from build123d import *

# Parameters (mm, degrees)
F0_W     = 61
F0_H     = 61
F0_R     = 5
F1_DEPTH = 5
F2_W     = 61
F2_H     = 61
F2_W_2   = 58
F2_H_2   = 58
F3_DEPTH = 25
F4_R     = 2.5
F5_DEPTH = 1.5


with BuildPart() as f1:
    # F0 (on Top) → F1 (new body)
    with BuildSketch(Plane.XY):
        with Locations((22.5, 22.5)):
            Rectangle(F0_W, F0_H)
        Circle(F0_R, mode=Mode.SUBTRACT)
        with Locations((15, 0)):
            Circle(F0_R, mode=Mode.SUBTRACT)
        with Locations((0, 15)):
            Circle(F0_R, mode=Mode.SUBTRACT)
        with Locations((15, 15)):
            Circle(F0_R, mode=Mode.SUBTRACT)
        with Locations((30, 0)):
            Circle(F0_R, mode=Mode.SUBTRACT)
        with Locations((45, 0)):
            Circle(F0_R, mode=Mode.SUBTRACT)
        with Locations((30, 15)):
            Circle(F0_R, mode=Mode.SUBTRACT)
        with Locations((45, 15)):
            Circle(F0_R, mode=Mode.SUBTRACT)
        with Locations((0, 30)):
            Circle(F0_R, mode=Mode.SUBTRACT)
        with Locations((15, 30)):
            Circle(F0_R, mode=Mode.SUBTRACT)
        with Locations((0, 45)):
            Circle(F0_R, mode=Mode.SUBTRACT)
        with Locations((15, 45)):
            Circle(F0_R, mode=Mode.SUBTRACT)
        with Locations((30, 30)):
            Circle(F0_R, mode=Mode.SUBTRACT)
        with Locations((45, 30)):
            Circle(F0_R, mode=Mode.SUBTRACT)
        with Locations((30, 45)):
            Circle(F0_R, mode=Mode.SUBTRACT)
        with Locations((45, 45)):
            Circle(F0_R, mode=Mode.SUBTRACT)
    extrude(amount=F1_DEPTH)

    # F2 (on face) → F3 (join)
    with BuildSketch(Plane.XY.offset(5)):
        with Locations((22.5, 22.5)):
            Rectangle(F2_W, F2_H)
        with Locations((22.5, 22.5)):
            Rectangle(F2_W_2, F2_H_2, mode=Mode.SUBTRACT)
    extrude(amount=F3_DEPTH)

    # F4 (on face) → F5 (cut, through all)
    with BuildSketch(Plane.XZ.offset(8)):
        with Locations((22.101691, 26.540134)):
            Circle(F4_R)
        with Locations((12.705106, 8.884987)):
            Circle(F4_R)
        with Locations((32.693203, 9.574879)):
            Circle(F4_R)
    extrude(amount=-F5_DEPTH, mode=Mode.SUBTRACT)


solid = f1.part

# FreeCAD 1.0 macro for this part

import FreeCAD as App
import Part
import Sketcher

V = App.Vector
Q = App.Units.Quantity


def add_polygon(sketch, points):
    """Adds a closed chain of lines whose ends are joined by coincident constraints."""
    first, n = sketch.GeometryCount, len(points)
    for a, b in zip(points, points[1:] + points[:1]):
        sketch.addGeometry(Part.LineSegment(App.Vector(*a, 0), App.Vector(*b, 0)), False)
    for i in range(n):
        sketch.addConstraint(Sketcher.Constraint("Coincident", first + i, 2, first + (i + 1) % n, 1))

doc = App.newDocument("Part")
params = doc.addObject("Spreadsheet::Sheet", "Params")
for row, (alias, value) in enumerate([
    ("sketch1_diameter", "10 mm"),
    ("sketch1_width", "61 mm"),
    ("pad1_length", "5 mm"),
    ("sketch2_width", "61 mm"),
    ("sketch2_width2", "58 mm"),
    ("pad2_length", "25 mm"),
    ("sketch3_diameter", "5 mm"),
    ("pocket1_length", "1.5 mm"),
], start=1):
    params.set(f"A{row}", alias)
    params.set(f"B{row}", "=" + value)
    params.setAlias(f"B{row}", alias)

body = doc.addObject("PartDesign::Body", "Body")

sketch1 = body.newObject("Sketcher::SketchObject", "Sketch")
sketch1.AttachmentSupport = (doc.getObject("XY_Plane"), [""])
sketch1.MapMode = "FlatFace"
add_polygon(sketch1, [(-8, 53), (-8, -8), (53, -8), (53, 53)])
sketch1.addGeometry(Part.Circle(V(0, 0, 0), V(0, 0, 1), 5), False)
sketch1.addGeometry(Part.Circle(V(15, 0, 0), V(0, 0, 1), 5), False)
sketch1.addGeometry(Part.Circle(V(0, 15, 0), V(0, 0, 1), 5), False)
sketch1.addGeometry(Part.Circle(V(15, 15, 0), V(0, 0, 1), 5), False)
sketch1.addGeometry(Part.Circle(V(30, 0, 0), V(0, 0, 1), 5), False)
sketch1.addGeometry(Part.Circle(V(45, 0, 0), V(0, 0, 1), 5), False)
sketch1.addGeometry(Part.Circle(V(30, 15, 0), V(0, 0, 1), 5), False)
sketch1.addGeometry(Part.Circle(V(45, 15, 0), V(0, 0, 1), 5), False)
sketch1.addGeometry(Part.Circle(V(0, 30, 0), V(0, 0, 1), 5), False)
sketch1.addGeometry(Part.Circle(V(15, 30, 0), V(0, 0, 1), 5), False)
sketch1.addGeometry(Part.Circle(V(0, 45, 0), V(0, 0, 1), 5), False)
sketch1.addGeometry(Part.Circle(V(15, 45, 0), V(0, 0, 1), 5), False)
sketch1.addGeometry(Part.Circle(V(30, 30, 0), V(0, 0, 1), 5), False)
sketch1.addGeometry(Part.Circle(V(45, 30, 0), V(0, 0, 1), 5), False)
sketch1.addGeometry(Part.Circle(V(30, 45, 0), V(0, 0, 1), 5), False)
sketch1.addGeometry(Part.Circle(V(45, 45, 0), V(0, 0, 1), 5), False)
sketch1.addConstraint(Sketcher.Constraint("Vertical", 0))
sketch1.addConstraint(Sketcher.Constraint("Horizontal", 1))
sketch1.addConstraint(Sketcher.Constraint("Vertical", 2))
sketch1.addConstraint(Sketcher.Constraint("Horizontal", 3))
sketch1.addConstraint(Sketcher.Constraint("Coincident", 4, 3, -1, 1))
sketch1.addConstraint(Sketcher.Constraint("Equal", 4, 5))
sketch1.addConstraint(Sketcher.Constraint("Equal", 5, 6))
sketch1.addConstraint(Sketcher.Constraint("Equal", 6, 7))
sketch1.addConstraint(Sketcher.Constraint("Equal", 7, 8))
sketch1.addConstraint(Sketcher.Constraint("Equal", 8, 9))
sketch1.addConstraint(Sketcher.Constraint("Equal", 9, 10))
sketch1.addConstraint(Sketcher.Constraint("Equal", 10, 11))
sketch1.addConstraint(Sketcher.Constraint("Equal", 11, 12))
sketch1.addConstraint(Sketcher.Constraint("Equal", 12, 13))
sketch1.addConstraint(Sketcher.Constraint("Equal", 13, 14))
sketch1.addConstraint(Sketcher.Constraint("Equal", 14, 15))
sketch1.addConstraint(Sketcher.Constraint("Equal", 15, 16))
sketch1.addConstraint(Sketcher.Constraint("Equal", 16, 17))
sketch1.addConstraint(Sketcher.Constraint("Equal", 17, 18))
sketch1.addConstraint(Sketcher.Constraint("Equal", 18, 19))
sketch1.addConstraint(Sketcher.Constraint("PointOnObject", 5, 3, -1))
sketch1.addConstraint(Sketcher.Constraint("PointOnObject", 6, 3, -2))
sketch1.addConstraint(Sketcher.Constraint("PointOnObject", 8, 3, -1))
sketch1.addConstraint(Sketcher.Constraint("PointOnObject", 9, 3, -1))
sketch1.addConstraint(Sketcher.Constraint("PointOnObject", 12, 3, -2))
sketch1.addConstraint(Sketcher.Constraint("PointOnObject", 14, 3, -2))
sketch1.addConstraint(Sketcher.Constraint("Horizontal", 6, 3, 7, 3))
sketch1.addConstraint(Sketcher.Constraint("Horizontal", 7, 3, 10, 3))
sketch1.addConstraint(Sketcher.Constraint("Horizontal", 10, 3, 11, 3))
sketch1.addConstraint(Sketcher.Constraint("Horizontal", 12, 3, 13, 3))
sketch1.addConstraint(Sketcher.Constraint("Horizontal", 14, 3, 15, 3))
sketch1.addConstraint(Sketcher.Constraint("Horizontal", 13, 3, 16, 3))
sketch1.addConstraint(Sketcher.Constraint("Horizontal", 16, 3, 17, 3))
sketch1.addConstraint(Sketcher.Constraint("Horizontal", 15, 3, 18, 3))
sketch1.addConstraint(Sketcher.Constraint("Horizontal", 18, 3, 19, 3))
sketch1.addConstraint(Sketcher.Constraint("Vertical", 5, 3, 7, 3))
sketch1.addConstraint(Sketcher.Constraint("Vertical", 8, 3, 10, 3))
sketch1.addConstraint(Sketcher.Constraint("Vertical", 9, 3, 11, 3))
sketch1.addConstraint(Sketcher.Constraint("Vertical", 7, 3, 13, 3))
sketch1.addConstraint(Sketcher.Constraint("Vertical", 13, 3, 15, 3))
sketch1.addConstraint(Sketcher.Constraint("Vertical", 10, 3, 16, 3))
sketch1.addConstraint(Sketcher.Constraint("Vertical", 11, 3, 17, 3))
sketch1.addConstraint(Sketcher.Constraint("Vertical", 16, 3, 18, 3))
sketch1.addConstraint(Sketcher.Constraint("Vertical", 17, 3, 19, 3))
sketch1.addConstraint(Sketcher.Constraint("Equal", 3, 0))
sketch1.addConstraint(Sketcher.Constraint("Diameter", 4, Q("10 mm")))
sketch1.addConstraint(Sketcher.Constraint("DistanceX", 1, 1, 1, 2, Q("61 mm")))
sketch1.addConstraint(Sketcher.Constraint("DistanceX", -1, 1, 5, 3, Q("15 mm")))
sketch1.addConstraint(Sketcher.Constraint("DistanceY", -1, 1, 6, 3, Q("15 mm")))
sketch1.addConstraint(Sketcher.Constraint("DistanceX", -1, 1, 8, 3, Q("30 mm")))
sketch1.addConstraint(Sketcher.Constraint("DistanceX", -1, 1, 9, 3, Q("45 mm")))
sketch1.addConstraint(Sketcher.Constraint("DistanceY", -1, 1, 12, 3, Q("30 mm")))
sketch1.addConstraint(Sketcher.Constraint("DistanceY", -1, 1, 14, 3, Q("45 mm")))
sketch1.addConstraint(Sketcher.Constraint("DistanceX", 0, 2, -1, 1, Q("8 mm")))
sketch1.addConstraint(Sketcher.Constraint("DistanceY", 0, 2, -1, 1, Q("8 mm")))
sketch1.setExpression("Constraints[49]", "Params.sketch1_diameter")
sketch1.setExpression("Constraints[50]", "Params.sketch1_width")
pad1 = body.newObject("PartDesign::Pad", "Pad")
pad1.Profile = sketch1
pad1.setExpression("Length", "Params.pad1_length")

sketch2 = body.newObject("Sketcher::SketchObject", "Sketch001")
sketch2.AttachmentSupport = (doc.getObject("XY_Plane"), [""])
sketch2.MapMode = "FlatFace"
sketch2.AttachmentOffset = App.Placement(V(0, 0, 5), App.Rotation())
add_polygon(sketch2, [(-8, 53), (-8, -8), (53, -8), (53, 53)])
add_polygon(sketch2, [(52, -6), (-6, -6), (-6, 52), (52, 52)])
sketch2.addConstraint(Sketcher.Constraint("Vertical", 0))
sketch2.addConstraint(Sketcher.Constraint("Horizontal", 1))
sketch2.addConstraint(Sketcher.Constraint("Vertical", 2))
sketch2.addConstraint(Sketcher.Constraint("Horizontal", 3))
sketch2.addConstraint(Sketcher.Constraint("Horizontal", 4))
sketch2.addConstraint(Sketcher.Constraint("Vertical", 5))
sketch2.addConstraint(Sketcher.Constraint("Horizontal", 6))
sketch2.addConstraint(Sketcher.Constraint("Vertical", 7))
sketch2.addConstraint(Sketcher.Constraint("Equal", 3, 0))
sketch2.addConstraint(Sketcher.Constraint("Equal", 6, 5))
sketch2.addConstraint(Sketcher.Constraint("DistanceX", 1, 1, 1, 2, Q("61 mm")))
sketch2.addConstraint(Sketcher.Constraint("DistanceX", 4, 2, 4, 1, Q("58 mm")))
sketch2.addConstraint(Sketcher.Constraint("DistanceX", 0, 2, -1, 1, Q("8 mm")))
sketch2.addConstraint(Sketcher.Constraint("DistanceY", 0, 2, -1, 1, Q("8 mm")))
sketch2.addConstraint(Sketcher.Constraint("DistanceX", 4, 2, -1, 1, Q("6.5 mm")))
sketch2.addConstraint(Sketcher.Constraint("DistanceY", 4, 2, -1, 1, Q("6.5 mm")))
sketch2.setExpression("Constraints[18]", "Params.sketch2_width")
sketch2.setExpression("Constraints[19]", "Params.sketch2_width2")
pad2 = body.newObject("PartDesign::Pad", "Pad001")
pad2.Profile = sketch2
pad2.setExpression("Length", "Params.pad2_length")

sketch3 = body.newObject("Sketcher::SketchObject", "Sketch002")
sketch3.AttachmentSupport = (doc.getObject("XZ_Plane"), [""])
sketch3.MapMode = "FlatFace"
sketch3.AttachmentOffset = App.Placement(V(0, 0, 8), App.Rotation())
sketch3.addGeometry(Part.Circle(V(22.1, 26.5, 0), V(0, 0, 1), 2.5), False)
sketch3.addGeometry(Part.Circle(V(12.7, 8.9, 0), V(0, 0, 1), 2.5), False)
sketch3.addGeometry(Part.Circle(V(32.7, 9.6, 0), V(0, 0, 1), 2.5), False)
sketch3.addConstraint(Sketcher.Constraint("Equal", 0, 1))
sketch3.addConstraint(Sketcher.Constraint("Equal", 1, 2))
sketch3.addConstraint(Sketcher.Constraint("Diameter", 0, Q("5 mm")))
sketch3.addConstraint(Sketcher.Constraint("DistanceX", -1, 1, 0, 3, Q("22.101691 mm")))
sketch3.addConstraint(Sketcher.Constraint("DistanceY", -1, 1, 2, 3, Q("9.574879 mm")))
sketch3.addConstraint(Sketcher.Constraint("DistanceY", 1, 3, 2, 3, Q("0.689892 mm")))
sketch3.addConstraint(Sketcher.Constraint("DistanceX", 0, 3, 2, 3, Q("10.591512 mm")))
sketch3.addConstraint(Sketcher.Constraint("DistanceY", -1, 1, 0, 3, Q("26.540134 mm")))
sketch3.addConstraint(Sketcher.Constraint("DistanceX", -1, 1, 1, 3, Q("12.705106 mm")))
sketch3.setExpression("Constraints[2]", "Params.sketch3_diameter")
pocket1 = body.newObject("PartDesign::Pocket", "Pocket")
pocket1.Profile = sketch3
pocket1.setExpression("Length", "Params.pocket1_length")

doc.recompute()
